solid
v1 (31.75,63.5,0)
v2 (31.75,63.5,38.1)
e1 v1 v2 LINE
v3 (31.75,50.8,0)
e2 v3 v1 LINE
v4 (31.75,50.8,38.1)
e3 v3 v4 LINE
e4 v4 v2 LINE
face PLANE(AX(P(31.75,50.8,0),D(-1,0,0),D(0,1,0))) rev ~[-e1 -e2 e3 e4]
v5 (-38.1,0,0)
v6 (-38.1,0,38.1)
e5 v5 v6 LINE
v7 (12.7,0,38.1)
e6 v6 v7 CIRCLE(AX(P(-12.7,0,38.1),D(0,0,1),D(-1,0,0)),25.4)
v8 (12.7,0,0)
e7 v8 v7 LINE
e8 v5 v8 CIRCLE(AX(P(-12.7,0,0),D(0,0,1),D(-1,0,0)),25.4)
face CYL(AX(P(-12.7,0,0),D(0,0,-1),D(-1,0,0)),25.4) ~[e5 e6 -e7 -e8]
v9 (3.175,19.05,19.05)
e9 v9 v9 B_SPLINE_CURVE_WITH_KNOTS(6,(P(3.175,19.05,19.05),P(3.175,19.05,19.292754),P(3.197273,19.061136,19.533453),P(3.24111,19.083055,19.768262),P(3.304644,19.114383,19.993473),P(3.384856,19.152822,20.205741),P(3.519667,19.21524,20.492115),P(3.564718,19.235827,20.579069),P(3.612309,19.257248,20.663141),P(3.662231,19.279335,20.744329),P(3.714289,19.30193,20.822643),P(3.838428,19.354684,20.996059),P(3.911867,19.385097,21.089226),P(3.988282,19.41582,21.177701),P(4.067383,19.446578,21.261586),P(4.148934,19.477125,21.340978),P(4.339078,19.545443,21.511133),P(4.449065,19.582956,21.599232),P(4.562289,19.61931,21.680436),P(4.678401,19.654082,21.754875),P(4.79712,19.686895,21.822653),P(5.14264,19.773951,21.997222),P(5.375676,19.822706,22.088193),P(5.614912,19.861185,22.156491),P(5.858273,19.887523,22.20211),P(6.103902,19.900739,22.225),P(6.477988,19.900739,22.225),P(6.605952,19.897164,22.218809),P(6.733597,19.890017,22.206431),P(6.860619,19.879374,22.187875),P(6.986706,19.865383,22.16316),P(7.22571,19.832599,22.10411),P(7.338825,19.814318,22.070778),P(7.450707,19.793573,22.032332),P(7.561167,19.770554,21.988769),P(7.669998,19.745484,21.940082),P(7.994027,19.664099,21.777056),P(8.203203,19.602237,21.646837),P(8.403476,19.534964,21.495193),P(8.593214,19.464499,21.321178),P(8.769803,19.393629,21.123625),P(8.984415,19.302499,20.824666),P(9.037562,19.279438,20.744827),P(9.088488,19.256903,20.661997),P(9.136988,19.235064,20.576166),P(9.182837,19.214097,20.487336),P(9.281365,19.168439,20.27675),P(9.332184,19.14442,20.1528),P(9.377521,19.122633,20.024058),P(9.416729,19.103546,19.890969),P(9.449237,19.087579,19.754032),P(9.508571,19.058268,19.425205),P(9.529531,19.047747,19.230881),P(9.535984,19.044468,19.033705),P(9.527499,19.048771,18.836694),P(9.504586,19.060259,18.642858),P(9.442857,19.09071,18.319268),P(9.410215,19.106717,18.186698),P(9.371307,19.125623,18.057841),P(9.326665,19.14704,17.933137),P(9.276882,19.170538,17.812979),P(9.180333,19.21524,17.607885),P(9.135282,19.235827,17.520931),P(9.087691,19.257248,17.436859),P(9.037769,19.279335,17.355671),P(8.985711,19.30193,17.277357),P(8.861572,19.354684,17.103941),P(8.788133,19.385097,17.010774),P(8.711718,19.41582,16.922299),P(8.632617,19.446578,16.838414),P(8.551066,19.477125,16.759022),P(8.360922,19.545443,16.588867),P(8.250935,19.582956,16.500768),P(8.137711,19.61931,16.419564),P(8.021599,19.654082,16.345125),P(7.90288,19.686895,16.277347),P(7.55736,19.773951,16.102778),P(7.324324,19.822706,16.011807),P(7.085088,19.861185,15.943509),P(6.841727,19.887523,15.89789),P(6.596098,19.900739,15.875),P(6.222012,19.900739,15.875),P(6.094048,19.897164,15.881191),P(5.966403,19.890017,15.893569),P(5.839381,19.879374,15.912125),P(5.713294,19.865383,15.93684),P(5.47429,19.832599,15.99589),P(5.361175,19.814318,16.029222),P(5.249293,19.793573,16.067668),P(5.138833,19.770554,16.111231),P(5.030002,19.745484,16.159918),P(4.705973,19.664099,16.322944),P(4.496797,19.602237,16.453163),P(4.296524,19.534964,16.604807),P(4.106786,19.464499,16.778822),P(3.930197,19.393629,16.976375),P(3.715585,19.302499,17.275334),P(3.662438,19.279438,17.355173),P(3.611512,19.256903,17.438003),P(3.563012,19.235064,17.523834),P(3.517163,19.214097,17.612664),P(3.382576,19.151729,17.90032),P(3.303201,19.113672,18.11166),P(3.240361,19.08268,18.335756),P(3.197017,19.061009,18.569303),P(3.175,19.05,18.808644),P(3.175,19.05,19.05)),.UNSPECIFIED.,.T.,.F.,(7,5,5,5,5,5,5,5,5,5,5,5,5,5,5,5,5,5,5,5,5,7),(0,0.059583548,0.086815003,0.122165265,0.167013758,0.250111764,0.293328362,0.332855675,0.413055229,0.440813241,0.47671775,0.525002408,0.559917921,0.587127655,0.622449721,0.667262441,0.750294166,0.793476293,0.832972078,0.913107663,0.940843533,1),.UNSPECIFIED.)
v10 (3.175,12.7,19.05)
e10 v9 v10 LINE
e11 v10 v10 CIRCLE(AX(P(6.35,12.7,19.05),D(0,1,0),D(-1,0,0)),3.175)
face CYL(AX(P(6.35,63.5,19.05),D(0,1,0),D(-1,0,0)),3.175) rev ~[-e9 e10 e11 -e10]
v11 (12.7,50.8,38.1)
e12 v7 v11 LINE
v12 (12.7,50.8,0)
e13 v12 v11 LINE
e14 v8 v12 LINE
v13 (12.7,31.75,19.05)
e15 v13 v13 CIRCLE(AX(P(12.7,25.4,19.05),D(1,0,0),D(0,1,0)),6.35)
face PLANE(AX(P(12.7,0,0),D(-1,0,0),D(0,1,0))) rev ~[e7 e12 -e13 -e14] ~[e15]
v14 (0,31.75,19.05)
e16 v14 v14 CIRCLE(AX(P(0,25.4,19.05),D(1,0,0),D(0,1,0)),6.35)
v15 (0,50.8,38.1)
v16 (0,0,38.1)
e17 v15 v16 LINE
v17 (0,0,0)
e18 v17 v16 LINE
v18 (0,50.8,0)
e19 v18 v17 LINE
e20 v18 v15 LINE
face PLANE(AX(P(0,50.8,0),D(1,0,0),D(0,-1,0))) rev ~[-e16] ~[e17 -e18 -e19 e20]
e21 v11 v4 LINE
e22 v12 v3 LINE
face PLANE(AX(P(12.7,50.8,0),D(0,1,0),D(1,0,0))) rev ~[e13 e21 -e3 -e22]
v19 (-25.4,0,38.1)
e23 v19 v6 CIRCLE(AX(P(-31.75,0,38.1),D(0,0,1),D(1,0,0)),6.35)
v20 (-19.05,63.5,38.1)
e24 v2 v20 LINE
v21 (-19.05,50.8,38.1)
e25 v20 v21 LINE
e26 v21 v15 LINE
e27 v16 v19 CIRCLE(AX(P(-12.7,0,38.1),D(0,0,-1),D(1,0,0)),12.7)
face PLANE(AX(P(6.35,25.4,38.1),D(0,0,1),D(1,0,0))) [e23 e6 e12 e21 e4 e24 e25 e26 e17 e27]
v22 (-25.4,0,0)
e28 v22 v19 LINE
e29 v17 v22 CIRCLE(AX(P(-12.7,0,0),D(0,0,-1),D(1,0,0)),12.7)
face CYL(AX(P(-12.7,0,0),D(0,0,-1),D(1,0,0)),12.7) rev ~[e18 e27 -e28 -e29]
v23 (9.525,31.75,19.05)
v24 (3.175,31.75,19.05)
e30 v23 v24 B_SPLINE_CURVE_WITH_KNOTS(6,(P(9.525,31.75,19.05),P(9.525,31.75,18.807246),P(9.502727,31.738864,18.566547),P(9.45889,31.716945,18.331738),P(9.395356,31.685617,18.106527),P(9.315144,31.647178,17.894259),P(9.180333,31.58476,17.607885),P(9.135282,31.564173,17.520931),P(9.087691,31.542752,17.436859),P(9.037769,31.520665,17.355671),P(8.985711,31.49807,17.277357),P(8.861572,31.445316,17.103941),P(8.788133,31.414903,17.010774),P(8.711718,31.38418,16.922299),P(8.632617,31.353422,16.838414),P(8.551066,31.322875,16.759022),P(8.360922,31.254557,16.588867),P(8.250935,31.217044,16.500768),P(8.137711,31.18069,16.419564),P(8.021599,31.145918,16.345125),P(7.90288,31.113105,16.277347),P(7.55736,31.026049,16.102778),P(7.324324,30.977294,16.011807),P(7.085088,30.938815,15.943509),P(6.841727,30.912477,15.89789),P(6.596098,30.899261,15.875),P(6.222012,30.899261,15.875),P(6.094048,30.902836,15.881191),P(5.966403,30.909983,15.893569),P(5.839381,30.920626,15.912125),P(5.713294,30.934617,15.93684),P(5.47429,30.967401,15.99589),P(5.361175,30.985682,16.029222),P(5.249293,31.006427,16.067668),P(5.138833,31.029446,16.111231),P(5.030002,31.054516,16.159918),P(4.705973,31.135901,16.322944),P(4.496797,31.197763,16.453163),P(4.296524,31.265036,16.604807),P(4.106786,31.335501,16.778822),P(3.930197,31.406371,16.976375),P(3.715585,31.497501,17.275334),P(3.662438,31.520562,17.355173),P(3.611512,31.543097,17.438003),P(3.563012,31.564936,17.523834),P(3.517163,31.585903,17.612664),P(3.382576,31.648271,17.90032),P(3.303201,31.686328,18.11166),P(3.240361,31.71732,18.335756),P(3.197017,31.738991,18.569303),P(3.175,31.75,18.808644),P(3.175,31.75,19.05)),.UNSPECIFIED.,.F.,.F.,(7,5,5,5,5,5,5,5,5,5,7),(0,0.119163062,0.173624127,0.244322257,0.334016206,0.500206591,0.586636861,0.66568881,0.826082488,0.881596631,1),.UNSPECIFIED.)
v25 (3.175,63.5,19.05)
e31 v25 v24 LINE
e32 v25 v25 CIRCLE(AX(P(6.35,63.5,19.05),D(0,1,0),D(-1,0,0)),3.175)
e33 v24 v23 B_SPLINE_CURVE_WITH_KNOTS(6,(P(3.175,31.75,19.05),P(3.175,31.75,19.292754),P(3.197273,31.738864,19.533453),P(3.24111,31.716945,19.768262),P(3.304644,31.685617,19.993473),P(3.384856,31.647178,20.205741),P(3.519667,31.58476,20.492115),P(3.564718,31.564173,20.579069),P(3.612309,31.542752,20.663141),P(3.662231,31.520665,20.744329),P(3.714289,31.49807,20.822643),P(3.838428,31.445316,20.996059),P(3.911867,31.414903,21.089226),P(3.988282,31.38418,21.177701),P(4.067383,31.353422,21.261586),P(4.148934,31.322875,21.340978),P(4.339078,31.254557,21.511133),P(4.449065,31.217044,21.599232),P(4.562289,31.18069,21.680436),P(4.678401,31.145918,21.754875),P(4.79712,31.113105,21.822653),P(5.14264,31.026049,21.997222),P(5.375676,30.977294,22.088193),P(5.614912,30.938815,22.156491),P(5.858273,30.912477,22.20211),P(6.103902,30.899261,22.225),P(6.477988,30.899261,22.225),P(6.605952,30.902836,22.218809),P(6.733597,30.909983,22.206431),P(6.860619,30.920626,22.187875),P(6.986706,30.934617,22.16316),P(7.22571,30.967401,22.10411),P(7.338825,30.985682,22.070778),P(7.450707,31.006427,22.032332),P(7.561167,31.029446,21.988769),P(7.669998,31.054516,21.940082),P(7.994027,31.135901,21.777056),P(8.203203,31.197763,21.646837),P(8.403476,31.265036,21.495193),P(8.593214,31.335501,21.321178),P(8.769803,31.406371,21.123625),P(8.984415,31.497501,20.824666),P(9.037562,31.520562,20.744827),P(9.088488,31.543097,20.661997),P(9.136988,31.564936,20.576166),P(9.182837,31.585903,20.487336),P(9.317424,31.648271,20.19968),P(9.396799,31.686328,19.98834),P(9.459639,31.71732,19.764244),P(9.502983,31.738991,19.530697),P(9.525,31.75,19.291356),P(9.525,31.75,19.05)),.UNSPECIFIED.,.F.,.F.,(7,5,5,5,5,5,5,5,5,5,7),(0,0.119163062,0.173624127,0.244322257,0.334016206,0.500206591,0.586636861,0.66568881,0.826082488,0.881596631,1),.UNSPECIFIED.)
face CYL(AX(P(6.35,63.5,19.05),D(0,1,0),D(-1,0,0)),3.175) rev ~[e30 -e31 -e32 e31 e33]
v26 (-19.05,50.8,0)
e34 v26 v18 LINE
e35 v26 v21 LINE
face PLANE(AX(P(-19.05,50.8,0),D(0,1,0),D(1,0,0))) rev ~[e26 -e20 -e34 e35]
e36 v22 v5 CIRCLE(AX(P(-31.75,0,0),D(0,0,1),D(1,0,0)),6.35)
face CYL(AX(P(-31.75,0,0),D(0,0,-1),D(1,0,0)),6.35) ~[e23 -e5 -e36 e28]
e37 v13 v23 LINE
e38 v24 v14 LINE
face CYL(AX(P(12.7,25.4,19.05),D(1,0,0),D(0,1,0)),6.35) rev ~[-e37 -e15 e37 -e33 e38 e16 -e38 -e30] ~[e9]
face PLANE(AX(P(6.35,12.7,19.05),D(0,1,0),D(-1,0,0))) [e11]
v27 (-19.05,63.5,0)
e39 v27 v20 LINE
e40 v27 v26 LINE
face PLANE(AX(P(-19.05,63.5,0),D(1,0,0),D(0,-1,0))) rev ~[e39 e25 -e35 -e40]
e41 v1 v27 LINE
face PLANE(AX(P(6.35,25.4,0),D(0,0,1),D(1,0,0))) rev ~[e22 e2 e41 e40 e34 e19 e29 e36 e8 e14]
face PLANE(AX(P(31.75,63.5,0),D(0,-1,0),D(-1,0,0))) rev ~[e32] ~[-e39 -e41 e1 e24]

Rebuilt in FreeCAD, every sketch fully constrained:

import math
import FreeCAD as App
import Part
import Sketcher
from FreeCAD import Vector
Q = App.Units.Quantity

doc = App.newDocument("Part")
params = doc.addObject("Spreadsheet::Sheet", "Params")
for row, (alias, value) in enumerate([
    ("sketch1_radius", "1 in"),
    ("sketch1_radius2", "0.5 in"),
    ("sketch1_width", "2 in"),
    ("sketch1_height", "0.5 in"),
    ("pad1_length", "1.5 in"),
    ("sketch2_diameter", "0.5 in"),
    ("sketch3_diameter", "0.25 in"),
    ("pocket2_length", "2 in"),
], start=1):
    params.set(f"A{row}", alias)
    params.set(f"B{row}", "=" + value)
    params.setAlias(f"B{row}", alias)

body = doc.addObject("PartDesign::Body", "Body")

# Sketch on XY plane
sketch1 = doc.addObject("Sketcher::SketchObject", "Sketch")
body.addObject(sketch1)
sketch1.AttachmentSupport = (doc.XY_Plane, [""])
sketch1.MapMode = "FlatFace"
sketch1.addGeometry(Part.LineSegment(Vector(0, 51, 0), Vector(0, 0, 0)), False)
sketch1.addGeometry(Part.ArcOfCircle(Part.Circle(Vector(-13, 0, 0), Vector(0, 0, 1), 13), math.radians(180), math.radians(360)), False)
sketch1.addGeometry(Part.ArcOfCircle(Part.Circle(Vector(-32, 0, 0), Vector(0, 0, 1), 6), math.radians(0), math.radians(180)), False)
sketch1.addGeometry(Part.ArcOfCircle(Part.Circle(Vector(-13, 0, 0), Vector(0, 0, 1), 25), math.radians(180), math.radians(360)), False)
sketch1.addGeometry(Part.LineSegment(Vector(13, 0, 0), Vector(13, 51, 0)), False)
sketch1.addGeometry(Part.LineSegment(Vector(13, 51, 0), Vector(32, 51, 0)), False)
sketch1.addGeometry(Part.LineSegment(Vector(32, 51, 0), Vector(32, 64, 0)), False)
sketch1.addGeometry(Part.LineSegment(Vector(32, 64, 0), Vector(-19, 64, 0)), False)
sketch1.addGeometry(Part.LineSegment(Vector(-19, 64, 0), Vector(-19, 51, 0)), False)
sketch1.addGeometry(Part.LineSegment(Vector(-19, 51, 0), Vector(0, 51, 0)), False)
sketch1.addConstraint(Sketcher.Constraint("Tangent", 0, 2, 1, 2))
sketch1.addConstraint(Sketcher.Constraint("Tangent", 1, 1, 2, 1))
sketch1.addConstraint(Sketcher.Constraint("Tangent", 2, 2, 3, 1))
sketch1.addConstraint(Sketcher.Constraint("Tangent", 3, 2, 4, 1))
sketch1.addConstraint(Sketcher.Constraint("Coincident", 4, 2, 5, 1))
sketch1.addConstraint(Sketcher.Constraint("Coincident", 5, 2, 6, 1))
sketch1.addConstraint(Sketcher.Constraint("Coincident", 6, 2, 7, 1))
sketch1.addConstraint(Sketcher.Constraint("Coincident", 7, 2, 8, 1))
sketch1.addConstraint(Sketcher.Constraint("Coincident", 8, 2, 9, 1))
sketch1.addConstraint(Sketcher.Constraint("Coincident", 9, 2, 0, 1))
sketch1.addConstraint(Sketcher.Constraint("Vertical", 0))
sketch1.addConstraint(Sketcher.Constraint("Vertical", 4))
sketch1.addConstraint(Sketcher.Constraint("Horizontal", 5))
sketch1.addConstraint(Sketcher.Constraint("Vertical", 6))
sketch1.addConstraint(Sketcher.Constraint("Horizontal", 7))
sketch1.addConstraint(Sketcher.Constraint("Vertical", 8))
sketch1.addConstraint(Sketcher.Constraint("Horizontal", 9))
sketch1.addConstraint(Sketcher.Constraint("Coincident", 0, 2, -1, 1))
sketch1.addConstraint(Sketcher.Constraint("Coincident", 3, 3, 1, 3))
sketch1.addConstraint(Sketcher.Constraint("PointOnObject", 2, 3, -1))
sketch1.addConstraint(Sketcher.Constraint("Horizontal", 5, 2, 8, 2))
sketch1.addConstraint(Sketcher.Constraint("Equal", 5, 9))
sketch1.addConstraint(Sketcher.Constraint("Equal", 7, 0))
sketch1.addConstraint(Sketcher.Constraint("Radius", 3, Q("1 in")))
sketch1.addConstraint(Sketcher.Constraint("Radius", 1, Q("0.5 in")))
sketch1.addConstraint(Sketcher.Constraint("DistanceX", 7, 2, 7, 1, Q("2 in")))
sketch1.addConstraint(Sketcher.Constraint("DistanceY", 6, 1, 6, 2, Q("0.5 in")))
sketch1.setExpression("Constraints[23]", "Params.sketch1_radius")
sketch1.setExpression("Constraints[24]", "Params.sketch1_radius2")
sketch1.setExpression("Constraints[25]", "Params.sketch1_width")
sketch1.setExpression("Constraints[26]", "Params.sketch1_height")
pad1 = doc.addObject("PartDesign::Pad", "Pad")
body.addObject(pad1)
pad1.Profile = sketch1
pad1.setExpression("Length", "Params.pad1_length")

# Sketch on YZ plane
sketch2 = doc.addObject("Sketcher::SketchObject", "Sketch001")
body.addObject(sketch2)
sketch2.AttachmentSupport = (doc.YZ_Plane, [""])
sketch2.MapMode = "FlatFace"
sketch2.AttachmentOffset = App.Placement(Vector(0, 0, 0.5 * 25.4), App.Rotation())
sketch2.addGeometry(Part.Circle(Vector(25, 19, 0), Vector(0, 0, 1), 6), False)
sketch2.addConstraint(Sketcher.Constraint("Diameter", 0, Q("0.5 in")))
sketch2.addConstraint(Sketcher.Constraint("DistanceX", -1, 1, 0, 3, Q("1 in")))
sketch2.addConstraint(Sketcher.Constraint("DistanceY", -1, 1, 0, 3, Q("0.75 in")))
sketch2.setExpression("Constraints[0]", "Params.sketch2_diameter")
pocket1 = doc.addObject("PartDesign::Pocket", "Pocket")
body.addObject(pocket1)
pocket1.Profile = sketch2
pocket1.Type = "ThroughAll"

# Sketch on XZ plane
sketch3 = doc.addObject("Sketcher::SketchObject", "Sketch002")
body.addObject(sketch3)
sketch3.AttachmentSupport = (doc.XZ_Plane, [""])
sketch3.MapMode = "FlatFace"
sketch3.AttachmentOffset = App.Placement(Vector(0, 0, -2.5 * 25.4), App.Rotation())
sketch3.addGeometry(Part.Circle(Vector(6.3, 19.1, 0), Vector(0, 0, 1), 3.2), False)
sketch3.addConstraint(Sketcher.Constraint("Diameter", 0, Q("0.25 in")))
sketch3.addConstraint(Sketcher.Constraint("DistanceX", -1, 1, 0, 3, Q("0.25 in")))
sketch3.addConstraint(Sketcher.Constraint("DistanceY", -1, 1, 0, 3, Q("0.75 in")))
sketch3.setExpression("Constraints[0]", "Params.sketch3_diameter")
pocket2 = doc.addObject("PartDesign::Pocket", "Pocket001")
body.addObject(pocket2)
pocket2.Profile = sketch3
pocket2.setExpression("Length", "Params.pocket2_length")
pocket2.Reversed = True

doc.recompute()
